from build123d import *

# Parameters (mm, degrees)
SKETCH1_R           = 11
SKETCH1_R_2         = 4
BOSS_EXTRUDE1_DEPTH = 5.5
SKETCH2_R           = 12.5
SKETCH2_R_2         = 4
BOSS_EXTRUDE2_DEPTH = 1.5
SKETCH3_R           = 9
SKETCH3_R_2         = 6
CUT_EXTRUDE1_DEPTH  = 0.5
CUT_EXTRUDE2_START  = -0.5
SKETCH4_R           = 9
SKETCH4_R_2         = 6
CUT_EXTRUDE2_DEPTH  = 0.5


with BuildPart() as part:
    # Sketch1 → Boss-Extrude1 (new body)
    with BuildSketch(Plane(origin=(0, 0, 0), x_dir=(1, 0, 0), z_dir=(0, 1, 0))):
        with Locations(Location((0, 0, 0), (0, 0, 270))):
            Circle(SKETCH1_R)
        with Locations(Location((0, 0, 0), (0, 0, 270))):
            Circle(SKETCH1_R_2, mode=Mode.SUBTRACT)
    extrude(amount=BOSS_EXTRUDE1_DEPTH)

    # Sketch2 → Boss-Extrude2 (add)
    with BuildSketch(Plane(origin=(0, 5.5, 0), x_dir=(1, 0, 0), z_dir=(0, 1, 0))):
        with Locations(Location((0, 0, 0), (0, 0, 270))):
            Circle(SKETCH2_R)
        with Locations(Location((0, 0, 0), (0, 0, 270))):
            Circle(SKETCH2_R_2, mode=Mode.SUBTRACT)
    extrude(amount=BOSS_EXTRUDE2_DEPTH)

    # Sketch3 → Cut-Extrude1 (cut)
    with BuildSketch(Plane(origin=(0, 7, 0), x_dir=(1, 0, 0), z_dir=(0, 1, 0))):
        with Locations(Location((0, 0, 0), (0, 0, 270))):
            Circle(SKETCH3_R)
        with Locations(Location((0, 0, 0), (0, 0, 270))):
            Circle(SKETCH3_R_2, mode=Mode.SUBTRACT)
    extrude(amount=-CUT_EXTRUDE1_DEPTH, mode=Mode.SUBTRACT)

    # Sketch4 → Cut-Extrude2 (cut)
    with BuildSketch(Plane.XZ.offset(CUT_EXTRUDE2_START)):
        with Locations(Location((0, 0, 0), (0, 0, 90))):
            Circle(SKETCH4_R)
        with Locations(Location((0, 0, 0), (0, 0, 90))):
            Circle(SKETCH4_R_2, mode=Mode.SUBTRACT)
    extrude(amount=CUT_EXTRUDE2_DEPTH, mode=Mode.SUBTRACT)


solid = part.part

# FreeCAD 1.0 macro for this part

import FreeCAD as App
import Part
import Sketcher

doc = App.newDocument("Part")
params = doc.addObject("Spreadsheet::Sheet", "Params")
for row, (alias, value) in enumerate([
    ("sketch1_diameter", "22 mm"),
    ("sketch1_diameter2", "8 mm"),
    ("pad1_length", "5.5 mm"),
    ("sketch2_diameter", "25 mm"),
    ("sketch2_diameter2", "8 mm"),
    ("pad2_length", "1.5 mm"),
    ("sketch3_diameter", "18 mm"),
    ("sketch3_diameter2", "12 mm"),
    ("pocket1_length", "0.5 mm"),
    ("sketch4_diameter", "18 mm"),
    ("sketch4_diameter2", "12 mm"),
    ("pocket2_length", "0.5 mm"),
], start=1):
    params.set(f"A{row}", alias)
    params.set(f"B{row}", "=" + value)
    params.setAlias(f"B{row}", alias)

body = doc.addObject("PartDesign::Body", "Body")

sketch1 = body.newObject("Sketcher::SketchObject", "Sketch")
sketch1.AttachmentSupport = (doc.getObject("XZ_Plane"), [""])
sketch1.MapMode = "FlatFace"
sketch1.addGeometry([
    Part.Circle(App.Vector(0, 0, 0), App.Vector(0, 0, 1), 11),
    Part.Circle(App.Vector(0, 0, 0), App.Vector(0, 0, 1), 4),
], False)
sketch1.addConstraint([
    Sketcher.Constraint("Coincident", 0, 3, -1, 1),
    Sketcher.Constraint("Coincident", 1, 3, -1, 1),
    Sketcher.Constraint("Diameter", 0, 22.0),
    Sketcher.Constraint("Diameter", 1, 8.0),
])
sketch1.setExpression("Constraints[2]", "Params.sketch1_diameter")
sketch1.setExpression("Constraints[3]", "Params.sketch1_diameter2")
pad1 = body.newObject("PartDesign::Pad", "Pad")
pad1.Profile = sketch1
pad1.setExpression("Length", "Params.pad1_length")
pad1.Reversed = True

sketch2 = body.newObject("Sketcher::SketchObject", "Sketch001")
sketch2.AttachmentSupport = (doc.getObject("XZ_Plane"), [""])
sketch2.MapMode = "FlatFace"
sketch2.AttachmentOffset = App.Placement(App.Vector(0, 0, -5.5), App.Rotation())
sketch2.addGeometry([
    Part.Circle(App.Vector(0, 0, 0), App.Vector(0, 0, 1), 12.5),
    Part.Circle(App.Vector(0, 0, 0), App.Vector(0, 0, 1), 4),
], False)
sketch2.addConstraint([
    Sketcher.Constraint("Coincident", 0, 3, -1, 1),
    Sketcher.Constraint("Coincident", 1, 3, -1, 1),
    Sketcher.Constraint("Diameter", 0, 25.0),
    Sketcher.Constraint("Diameter", 1, 8.0),
])
sketch2.setExpression("Constraints[2]", "Params.sketch2_diameter")
sketch2.setExpression("Constraints[3]", "Params.sketch2_diameter2")
pad2 = body.newObject("PartDesign::Pad", "Pad001")
pad2.Profile = sketch2
pad2.setExpression("Length", "Params.pad2_length")
pad2.Reversed = True

sketch3 = body.newObject("Sketcher::SketchObject", "Sketch002")
sketch3.AttachmentSupport = (doc.getObject("XZ_Plane"), [""])
sketch3.MapMode = "FlatFace"
sketch3.AttachmentOffset = App.Placement(App.Vector(0, 0, -7), App.Rotation())
sketch3.addGeometry([
    Part.Circle(App.Vector(0, 0, 0), App.Vector(0, 0, 1), 9),
    Part.Circle(App.Vector(0, 0, 0), App.Vector(0, 0, 1), 6),
], False)
sketch3.addConstraint([
    Sketcher.Constraint("Coincident", 0, 3, -1, 1),
    Sketcher.Constraint("Coincident", 1, 3, -1, 1),
    Sketcher.Constraint("Diameter", 0, 18.0),
    Sketcher.Constraint("Diameter", 1, 12.0),
])
sketch3.setExpression("Constraints[2]", "Params.sketch3_diameter")
sketch3.setExpression("Constraints[3]", "Params.sketch3_diameter2")
pocket1 = body.newObject("PartDesign::Pocket", "Pocket")
pocket1.Profile = sketch3
pocket1.setExpression("Length", "Params.pocket1_length")
pocket1.Reversed = True

sketch4 = body.newObject("Sketcher::SketchObject", "Sketch003")
sketch4.AttachmentSupport = (doc.getObject("XZ_Plane"), [""])
sketch4.MapMode = "FlatFace"
sketch4.AttachmentOffset = App.Placement(App.Vector(0, 0, -0.5), App.Rotation())
sketch4.addGeometry([
    Part.Circle(App.Vector(0, 0, 0), App.Vector(0, 0, 1), 9),
    Part.Circle(App.Vector(0, 0, 0), App.Vector(0, 0, 1), 6),
], False)
sketch4.addConstraint([
    Sketcher.Constraint("Coincident", 0, 3, -1, 1),
    Sketcher.Constraint("Coincident", 1, 3, -1, 1),
    Sketcher.Constraint("Diameter", 0, 18.0),
    Sketcher.Constraint("Diameter", 1, 12.0),
])
sketch4.setExpression("Constraints[2]", "Params.sketch4_diameter")
sketch4.setExpression("Constraints[3]", "Params.sketch4_diameter2")
pocket2 = body.newObject("PartDesign::Pocket", "Pocket001")
pocket2.Profile = sketch4
pocket2.setExpression("Length", "Params.pocket2_length")
pocket2.Reversed = True

doc.recompute()
